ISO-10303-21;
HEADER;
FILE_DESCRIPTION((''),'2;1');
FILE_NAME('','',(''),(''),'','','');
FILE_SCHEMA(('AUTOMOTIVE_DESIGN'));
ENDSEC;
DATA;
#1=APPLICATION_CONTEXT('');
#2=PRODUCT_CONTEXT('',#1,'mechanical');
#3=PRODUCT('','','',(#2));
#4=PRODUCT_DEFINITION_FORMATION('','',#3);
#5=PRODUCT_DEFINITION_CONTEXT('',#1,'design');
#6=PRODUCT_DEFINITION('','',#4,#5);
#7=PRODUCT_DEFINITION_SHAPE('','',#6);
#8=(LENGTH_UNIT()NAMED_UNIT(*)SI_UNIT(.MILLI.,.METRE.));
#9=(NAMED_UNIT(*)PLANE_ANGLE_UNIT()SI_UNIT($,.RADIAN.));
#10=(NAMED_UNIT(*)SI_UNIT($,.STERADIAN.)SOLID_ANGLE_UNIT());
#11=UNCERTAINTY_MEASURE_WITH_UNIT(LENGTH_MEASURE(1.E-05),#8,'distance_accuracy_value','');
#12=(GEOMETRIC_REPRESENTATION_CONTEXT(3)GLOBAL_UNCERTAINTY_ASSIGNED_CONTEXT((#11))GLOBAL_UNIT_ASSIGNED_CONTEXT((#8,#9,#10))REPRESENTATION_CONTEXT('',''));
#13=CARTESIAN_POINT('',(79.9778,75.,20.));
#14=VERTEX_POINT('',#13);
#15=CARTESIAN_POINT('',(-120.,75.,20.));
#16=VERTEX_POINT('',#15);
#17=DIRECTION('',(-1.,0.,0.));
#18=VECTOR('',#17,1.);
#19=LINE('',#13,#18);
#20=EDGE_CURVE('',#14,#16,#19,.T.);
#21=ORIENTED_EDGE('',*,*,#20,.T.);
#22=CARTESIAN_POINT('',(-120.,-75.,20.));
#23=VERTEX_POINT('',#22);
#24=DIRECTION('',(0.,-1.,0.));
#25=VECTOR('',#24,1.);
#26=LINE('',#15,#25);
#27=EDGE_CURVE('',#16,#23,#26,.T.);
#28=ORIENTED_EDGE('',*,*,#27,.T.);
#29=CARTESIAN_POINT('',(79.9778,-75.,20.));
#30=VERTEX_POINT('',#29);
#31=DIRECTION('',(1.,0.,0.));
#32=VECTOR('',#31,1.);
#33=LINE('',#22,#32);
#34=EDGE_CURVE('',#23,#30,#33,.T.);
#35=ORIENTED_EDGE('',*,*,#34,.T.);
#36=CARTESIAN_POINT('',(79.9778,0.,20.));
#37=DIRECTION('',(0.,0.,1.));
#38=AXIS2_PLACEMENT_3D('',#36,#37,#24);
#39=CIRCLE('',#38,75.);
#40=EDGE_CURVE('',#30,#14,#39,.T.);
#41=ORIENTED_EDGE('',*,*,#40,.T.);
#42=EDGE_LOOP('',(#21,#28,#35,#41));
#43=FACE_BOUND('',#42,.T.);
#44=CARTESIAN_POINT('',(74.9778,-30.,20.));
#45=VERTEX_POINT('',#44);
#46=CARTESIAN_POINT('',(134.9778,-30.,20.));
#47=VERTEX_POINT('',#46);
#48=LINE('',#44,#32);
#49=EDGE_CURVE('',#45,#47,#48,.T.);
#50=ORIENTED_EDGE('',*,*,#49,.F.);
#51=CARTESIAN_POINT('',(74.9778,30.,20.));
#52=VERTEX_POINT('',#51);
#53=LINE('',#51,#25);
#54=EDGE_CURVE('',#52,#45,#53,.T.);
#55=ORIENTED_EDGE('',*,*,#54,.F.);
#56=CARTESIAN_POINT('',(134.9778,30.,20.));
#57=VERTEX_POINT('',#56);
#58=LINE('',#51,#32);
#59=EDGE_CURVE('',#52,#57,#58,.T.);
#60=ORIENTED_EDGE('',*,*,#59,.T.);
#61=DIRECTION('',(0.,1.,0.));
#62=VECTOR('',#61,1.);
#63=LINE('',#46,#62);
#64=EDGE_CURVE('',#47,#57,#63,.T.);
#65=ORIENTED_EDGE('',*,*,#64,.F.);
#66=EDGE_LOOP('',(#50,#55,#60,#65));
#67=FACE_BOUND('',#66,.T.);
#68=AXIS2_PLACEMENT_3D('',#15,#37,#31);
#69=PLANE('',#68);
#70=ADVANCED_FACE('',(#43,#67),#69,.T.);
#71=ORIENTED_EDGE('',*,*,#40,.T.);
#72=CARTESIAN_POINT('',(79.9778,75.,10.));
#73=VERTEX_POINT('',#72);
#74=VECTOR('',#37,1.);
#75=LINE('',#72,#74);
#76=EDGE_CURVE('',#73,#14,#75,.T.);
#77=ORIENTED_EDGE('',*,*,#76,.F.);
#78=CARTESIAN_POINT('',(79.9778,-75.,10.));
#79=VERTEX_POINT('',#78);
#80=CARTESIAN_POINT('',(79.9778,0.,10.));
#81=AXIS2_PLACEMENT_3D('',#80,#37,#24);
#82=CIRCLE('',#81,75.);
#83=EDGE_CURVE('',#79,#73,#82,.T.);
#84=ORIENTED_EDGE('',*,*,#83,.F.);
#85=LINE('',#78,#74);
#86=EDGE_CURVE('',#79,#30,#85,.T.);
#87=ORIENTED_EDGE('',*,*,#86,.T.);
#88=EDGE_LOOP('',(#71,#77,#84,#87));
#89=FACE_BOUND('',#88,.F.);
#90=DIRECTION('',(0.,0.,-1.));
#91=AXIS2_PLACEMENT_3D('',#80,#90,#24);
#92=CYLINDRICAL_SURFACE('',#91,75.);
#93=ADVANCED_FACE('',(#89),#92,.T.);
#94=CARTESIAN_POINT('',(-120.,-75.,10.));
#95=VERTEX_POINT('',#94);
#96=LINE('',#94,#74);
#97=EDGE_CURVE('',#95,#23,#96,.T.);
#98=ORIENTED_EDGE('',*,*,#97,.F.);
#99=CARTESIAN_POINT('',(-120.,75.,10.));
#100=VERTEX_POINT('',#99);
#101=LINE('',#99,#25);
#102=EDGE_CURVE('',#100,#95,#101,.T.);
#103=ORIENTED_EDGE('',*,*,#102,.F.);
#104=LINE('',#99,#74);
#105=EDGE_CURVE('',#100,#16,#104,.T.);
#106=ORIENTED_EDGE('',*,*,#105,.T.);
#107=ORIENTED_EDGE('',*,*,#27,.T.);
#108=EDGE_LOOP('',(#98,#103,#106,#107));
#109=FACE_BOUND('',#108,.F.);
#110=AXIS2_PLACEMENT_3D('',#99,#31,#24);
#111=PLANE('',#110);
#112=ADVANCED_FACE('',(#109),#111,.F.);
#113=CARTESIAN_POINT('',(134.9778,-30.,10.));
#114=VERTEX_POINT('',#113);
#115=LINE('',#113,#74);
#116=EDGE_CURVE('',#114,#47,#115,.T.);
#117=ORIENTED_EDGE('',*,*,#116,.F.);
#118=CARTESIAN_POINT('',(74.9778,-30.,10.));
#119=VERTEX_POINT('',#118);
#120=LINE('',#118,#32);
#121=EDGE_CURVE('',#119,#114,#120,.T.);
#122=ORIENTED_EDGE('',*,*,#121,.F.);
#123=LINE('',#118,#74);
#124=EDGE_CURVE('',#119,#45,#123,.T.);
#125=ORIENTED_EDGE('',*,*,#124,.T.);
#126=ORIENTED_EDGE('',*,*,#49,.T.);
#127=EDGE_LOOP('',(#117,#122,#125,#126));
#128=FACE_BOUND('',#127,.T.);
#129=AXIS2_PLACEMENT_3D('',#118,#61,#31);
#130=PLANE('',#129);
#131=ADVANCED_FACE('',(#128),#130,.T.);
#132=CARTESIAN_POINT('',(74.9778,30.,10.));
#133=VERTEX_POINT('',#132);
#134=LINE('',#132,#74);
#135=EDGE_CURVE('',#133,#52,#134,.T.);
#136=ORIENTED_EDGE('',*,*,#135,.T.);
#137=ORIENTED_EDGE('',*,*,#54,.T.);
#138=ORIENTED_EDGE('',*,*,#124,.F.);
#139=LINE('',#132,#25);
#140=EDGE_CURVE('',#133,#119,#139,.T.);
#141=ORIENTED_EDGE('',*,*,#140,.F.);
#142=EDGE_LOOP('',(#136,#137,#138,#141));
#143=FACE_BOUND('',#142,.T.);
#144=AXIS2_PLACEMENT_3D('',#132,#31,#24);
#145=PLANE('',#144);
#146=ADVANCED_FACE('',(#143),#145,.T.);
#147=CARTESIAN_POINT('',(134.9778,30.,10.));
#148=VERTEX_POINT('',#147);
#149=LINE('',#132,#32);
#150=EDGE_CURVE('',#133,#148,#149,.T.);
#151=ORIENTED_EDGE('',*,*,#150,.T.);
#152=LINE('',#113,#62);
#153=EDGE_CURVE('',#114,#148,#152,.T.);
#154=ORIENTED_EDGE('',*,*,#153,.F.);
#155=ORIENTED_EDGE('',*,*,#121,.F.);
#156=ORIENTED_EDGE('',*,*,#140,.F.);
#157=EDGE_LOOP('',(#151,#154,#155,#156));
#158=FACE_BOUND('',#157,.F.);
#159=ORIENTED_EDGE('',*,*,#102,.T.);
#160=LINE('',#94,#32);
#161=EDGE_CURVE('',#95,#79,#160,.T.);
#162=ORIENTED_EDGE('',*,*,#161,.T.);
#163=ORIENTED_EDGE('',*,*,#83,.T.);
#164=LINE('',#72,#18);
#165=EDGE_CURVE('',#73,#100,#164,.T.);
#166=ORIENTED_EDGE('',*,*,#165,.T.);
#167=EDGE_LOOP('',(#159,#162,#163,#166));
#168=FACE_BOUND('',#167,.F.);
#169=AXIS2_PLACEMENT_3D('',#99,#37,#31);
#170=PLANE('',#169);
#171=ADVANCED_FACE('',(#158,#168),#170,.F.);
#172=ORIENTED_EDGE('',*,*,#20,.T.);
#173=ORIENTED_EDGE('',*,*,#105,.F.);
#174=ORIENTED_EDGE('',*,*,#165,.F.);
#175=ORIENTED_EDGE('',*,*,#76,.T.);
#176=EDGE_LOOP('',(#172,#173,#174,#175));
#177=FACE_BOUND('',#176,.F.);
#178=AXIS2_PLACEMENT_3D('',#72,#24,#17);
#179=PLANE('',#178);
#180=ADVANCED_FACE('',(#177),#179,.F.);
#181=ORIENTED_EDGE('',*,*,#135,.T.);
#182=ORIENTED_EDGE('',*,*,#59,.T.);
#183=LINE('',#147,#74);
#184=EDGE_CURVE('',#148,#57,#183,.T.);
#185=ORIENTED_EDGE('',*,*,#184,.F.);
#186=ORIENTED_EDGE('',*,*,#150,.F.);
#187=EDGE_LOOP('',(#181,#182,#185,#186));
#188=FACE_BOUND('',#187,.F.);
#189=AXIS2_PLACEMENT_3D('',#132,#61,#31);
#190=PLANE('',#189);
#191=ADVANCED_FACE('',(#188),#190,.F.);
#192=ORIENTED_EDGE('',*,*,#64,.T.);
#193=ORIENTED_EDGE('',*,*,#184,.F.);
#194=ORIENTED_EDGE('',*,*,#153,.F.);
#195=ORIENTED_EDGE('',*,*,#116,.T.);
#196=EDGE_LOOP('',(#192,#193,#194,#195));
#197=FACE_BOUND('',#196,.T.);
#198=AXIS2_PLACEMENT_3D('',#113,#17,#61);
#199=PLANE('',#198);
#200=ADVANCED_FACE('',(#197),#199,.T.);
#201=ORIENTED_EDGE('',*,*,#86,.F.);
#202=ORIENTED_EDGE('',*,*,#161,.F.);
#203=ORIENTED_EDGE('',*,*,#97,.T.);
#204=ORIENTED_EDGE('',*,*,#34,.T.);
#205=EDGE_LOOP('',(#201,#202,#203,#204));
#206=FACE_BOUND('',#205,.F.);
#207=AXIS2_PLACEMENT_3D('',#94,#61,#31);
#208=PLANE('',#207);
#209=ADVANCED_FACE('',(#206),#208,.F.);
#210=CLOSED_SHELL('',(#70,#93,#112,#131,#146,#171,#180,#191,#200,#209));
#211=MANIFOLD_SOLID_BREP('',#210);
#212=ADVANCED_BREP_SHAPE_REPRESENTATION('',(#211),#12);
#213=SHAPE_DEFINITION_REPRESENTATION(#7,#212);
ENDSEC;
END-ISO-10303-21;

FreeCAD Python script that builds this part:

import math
import FreeCAD as App
import Part
import Sketcher
Q = App.Units.Quantity


def add_polygon(sketch, points):
    """Adds a closed chain of lines whose ends are joined by coincident constraints."""
    first, n = sketch.GeometryCount, len(points)
    for a, b in zip(points, points[1:] + points[:1]):
        sketch.addGeometry(Part.LineSegment(App.Vector(*a, 0), App.Vector(*b, 0)), False)
    for i in range(n):
        sketch.addConstraint(Sketcher.Constraint("Coincident", first + i, 2, first + (i + 1) % n, 1))

doc = App.newDocument("Part")
body = doc.addObject("PartDesign::Body", "Body")

sketch1 = doc.addObject("Sketcher::SketchObject", "Sketch")
body.addObject(sketch1)
sketch1.AttachmentSupport = (doc.XY_Plane, [""])
sketch1.MapMode = "FlatFace"
sketch1.AttachmentOffset = App.Placement(App.Vector(0, 0, 10), App.Rotation())
sketch1.addGeometry(Part.ArcOfCircle(Part.Circle(App.Vector(80, 0, 0), App.Vector(0, 0, 1), 75), math.radians(-90), math.radians(90)), False)
sketch1.addGeometry(Part.LineSegment(App.Vector(80, 75, 0), App.Vector(-120, 75, 0)), False)
sketch1.addGeometry(Part.LineSegment(App.Vector(-120, 75, 0), App.Vector(-120, -75, 0)), False)
sketch1.addGeometry(Part.LineSegment(App.Vector(-120, -75, 0), App.Vector(80, -75, 0)), False)
add_polygon(sketch1, [(75, -30), (75, 30), (135, 30), (135, -30)])
sketch1.addConstraint(Sketcher.Constraint("Tangent", 0, 2, 1, 1))
sketch1.addConstraint(Sketcher.Constraint("Coincident", 1, 2, 2, 1))
sketch1.addConstraint(Sketcher.Constraint("Coincident", 2, 2, 3, 1))
sketch1.addConstraint(Sketcher.Constraint("Tangent", 3, 2, 0, 1))
sketch1.addConstraint(Sketcher.Constraint("Horizontal", 1))
sketch1.addConstraint(Sketcher.Constraint("Vertical", 2))
sketch1.addConstraint(Sketcher.Constraint("Horizontal", 3))
sketch1.addConstraint(Sketcher.Constraint("Vertical", 4))
sketch1.addConstraint(Sketcher.Constraint("Horizontal", 5))
sketch1.addConstraint(Sketcher.Constraint("Vertical", 6))
sketch1.addConstraint(Sketcher.Constraint("Horizontal", 7))
sketch1.addConstraint(Sketcher.Constraint("PointOnObject", 0, 3, -1))
sketch1.addConstraint(Sketcher.Constraint("Equal", 7, 4))
sketch1.addConstraint(Sketcher.Constraint("DistanceX", 5, 1, 5, 2, Q("60 mm")))
sketch1.addConstraint(Sketcher.Constraint("Radius", 0, Q("75 mm")))
sketch1.addConstraint(Sketcher.Constraint("DistanceX", 1, 2, -1, 1, Q("120 mm")))
sketch1.addConstraint(Sketcher.Constraint("DistanceY", -1, 1, 4, 2, Q("30 mm")))
sketch1.addConstraint(Sketcher.Constraint("DistanceX", 4, 2, 0, 3, Q("5 mm")))
sketch1.addConstraint(Sketcher.Constraint("DistanceX", 1, 2, 1, 1, Q("199.9778 mm")))
pad1 = doc.addObject("PartDesign::Pad", "Pad")
body.addObject(pad1)
pad1.Profile = sketch1
pad1.Length = 10

doc.recompute()
